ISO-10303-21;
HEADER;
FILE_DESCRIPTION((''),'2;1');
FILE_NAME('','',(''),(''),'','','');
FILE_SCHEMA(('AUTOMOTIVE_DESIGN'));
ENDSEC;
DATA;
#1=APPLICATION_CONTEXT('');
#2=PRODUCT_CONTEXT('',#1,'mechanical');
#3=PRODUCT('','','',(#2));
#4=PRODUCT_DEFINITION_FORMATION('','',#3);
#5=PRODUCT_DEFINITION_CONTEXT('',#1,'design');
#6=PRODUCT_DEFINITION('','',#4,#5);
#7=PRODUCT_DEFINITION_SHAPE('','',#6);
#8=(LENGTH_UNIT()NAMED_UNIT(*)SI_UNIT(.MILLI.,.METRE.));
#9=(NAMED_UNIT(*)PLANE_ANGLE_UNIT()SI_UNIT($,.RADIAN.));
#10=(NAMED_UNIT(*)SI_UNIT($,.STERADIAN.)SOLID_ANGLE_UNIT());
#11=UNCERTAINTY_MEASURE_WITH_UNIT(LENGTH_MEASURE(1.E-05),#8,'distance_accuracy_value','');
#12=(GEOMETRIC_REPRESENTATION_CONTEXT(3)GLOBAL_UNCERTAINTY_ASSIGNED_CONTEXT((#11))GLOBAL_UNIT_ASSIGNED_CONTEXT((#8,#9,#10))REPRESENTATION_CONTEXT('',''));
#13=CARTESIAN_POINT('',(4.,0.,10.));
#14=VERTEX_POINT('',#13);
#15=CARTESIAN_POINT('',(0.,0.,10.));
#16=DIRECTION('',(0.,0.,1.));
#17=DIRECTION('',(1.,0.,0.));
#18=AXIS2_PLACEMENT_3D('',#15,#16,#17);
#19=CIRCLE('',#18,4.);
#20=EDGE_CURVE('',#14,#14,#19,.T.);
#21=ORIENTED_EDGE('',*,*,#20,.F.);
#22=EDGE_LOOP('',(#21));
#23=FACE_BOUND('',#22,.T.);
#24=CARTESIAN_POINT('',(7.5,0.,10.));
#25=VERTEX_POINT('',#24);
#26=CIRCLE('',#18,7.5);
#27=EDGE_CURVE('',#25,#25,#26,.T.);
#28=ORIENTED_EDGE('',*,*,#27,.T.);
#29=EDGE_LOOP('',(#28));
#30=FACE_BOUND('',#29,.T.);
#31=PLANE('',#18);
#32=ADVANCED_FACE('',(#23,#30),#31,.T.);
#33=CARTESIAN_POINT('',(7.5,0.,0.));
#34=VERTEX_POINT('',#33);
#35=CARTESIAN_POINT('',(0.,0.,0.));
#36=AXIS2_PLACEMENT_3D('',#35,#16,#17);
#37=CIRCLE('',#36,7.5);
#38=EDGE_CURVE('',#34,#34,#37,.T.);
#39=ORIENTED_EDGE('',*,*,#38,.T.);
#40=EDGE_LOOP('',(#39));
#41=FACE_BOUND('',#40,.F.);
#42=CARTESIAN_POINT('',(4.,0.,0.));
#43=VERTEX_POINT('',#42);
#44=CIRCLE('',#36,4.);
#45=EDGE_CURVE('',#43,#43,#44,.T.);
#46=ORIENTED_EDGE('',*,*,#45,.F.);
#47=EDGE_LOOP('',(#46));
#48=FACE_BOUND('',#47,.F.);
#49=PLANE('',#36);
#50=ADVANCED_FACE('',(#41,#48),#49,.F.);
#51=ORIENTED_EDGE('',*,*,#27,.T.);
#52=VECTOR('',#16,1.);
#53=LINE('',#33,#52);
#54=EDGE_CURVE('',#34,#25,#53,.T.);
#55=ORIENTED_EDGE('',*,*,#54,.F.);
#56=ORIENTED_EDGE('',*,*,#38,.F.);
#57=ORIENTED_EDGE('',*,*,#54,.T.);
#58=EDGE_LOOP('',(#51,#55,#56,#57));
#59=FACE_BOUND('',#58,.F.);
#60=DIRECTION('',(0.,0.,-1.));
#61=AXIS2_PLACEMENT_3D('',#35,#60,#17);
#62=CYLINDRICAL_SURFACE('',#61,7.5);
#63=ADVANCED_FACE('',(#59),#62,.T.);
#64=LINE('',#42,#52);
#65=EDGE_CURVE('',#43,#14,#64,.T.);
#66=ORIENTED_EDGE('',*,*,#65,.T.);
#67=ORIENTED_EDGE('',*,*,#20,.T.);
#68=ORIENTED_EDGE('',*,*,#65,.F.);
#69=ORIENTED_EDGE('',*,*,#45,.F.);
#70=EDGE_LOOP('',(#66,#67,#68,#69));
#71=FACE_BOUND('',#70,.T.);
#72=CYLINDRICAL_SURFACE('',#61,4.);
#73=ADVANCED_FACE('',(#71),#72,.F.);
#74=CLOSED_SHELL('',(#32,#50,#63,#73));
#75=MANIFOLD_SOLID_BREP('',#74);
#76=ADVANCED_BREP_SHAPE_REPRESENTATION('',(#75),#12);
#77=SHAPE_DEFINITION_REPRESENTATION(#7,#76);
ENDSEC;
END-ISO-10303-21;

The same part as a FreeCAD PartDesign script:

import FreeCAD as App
import Part
import Sketcher

doc = App.newDocument("Part")
body = doc.addObject("PartDesign::Body", "Body")

# Sketch on XY plane
sketch1 = body.newObject("Sketcher::SketchObject", "Sketch")
sketch1.AttachmentSupport = (doc.getObject("XY_Plane"), [""])
sketch1.MapMode = "FlatFace"
sketch1.addGeometry(Part.Circle(App.Vector(0, 0, 0), App.Vector(0, 0, 1), 7.5), False)
sketch1.addGeometry(Part.Circle(App.Vector(0, 0, 0), App.Vector(0, 0, 1), 4), False)
sketch1.addConstraint(Sketcher.Constraint("Coincident", 0, 3, -1, 1))
sketch1.addConstraint(Sketcher.Constraint("Coincident", 1, 3, -1, 1))
sketch1.addConstraint(Sketcher.Constraint("Diameter", 0, 15.0))
sketch1.addConstraint(Sketcher.Constraint("Diameter", 1, 8.0))
pad1 = body.newObject("PartDesign::Pad", "Pad")
pad1.Profile = sketch1
pad1.Length = 10
body2 = doc.addObject("PartDesign::Body", "Body001")

# Sketch on XZ plane
sketch2 = body2.newObject("Sketcher::SketchObject", "Sketch001")
sketch2.AttachmentSupport = (doc.getObject("XZ_Plane001"), [""])
sketch2.MapMode = "FlatFace"
sketch2.addGeometry(Part.LineSegment(App.Vector(16.2, 42.7, 0), App.Vector(16.2, 41.7, 0)), False)
sketch2.addGeometry(Part.LineSegment(App.Vector(16.2, 41.7, 0), App.Vector(46.2, 41.7, 0)), False)
sketch2.addGeometry(Part.LineSegment(App.Vector(46.2, 41.7, 0), App.Vector(46.2, 42.7, 0)), False)
sketch2.addGeometry(Part.LineSegment(App.Vector(46.2, 42.7, 0), App.Vector(16.2, 42.7, 0)), False)
sketch2.addGeometry(Part.LineSegment(App.Vector(16.2, 42.7, 0), App.Vector(46.2, 42.7, 0)), True)  # axis
sketch2.addConstraint(Sketcher.Constraint("Coincident", 0, 2, 1, 1))
sketch2.addConstraint(Sketcher.Constraint("Coincident", 1, 2, 2, 1))
sketch2.addConstraint(Sketcher.Constraint("Coincident", 2, 2, 3, 1))
sketch2.addConstraint(Sketcher.Constraint("Coincident", 3, 2, 0, 1))
sketch2.addConstraint(Sketcher.Constraint("Vertical", 0))
sketch2.addConstraint(Sketcher.Constraint("Horizontal", 1))
sketch2.addConstraint(Sketcher.Constraint("Vertical", 2))
sketch2.addConstraint(Sketcher.Constraint("Horizontal", 3))
sketch2.addConstraint(Sketcher.Constraint("Horizontal", 4))
sketch2.addConstraint(Sketcher.Constraint("Coincident", 4, 1, 3, 2))
sketch2.addConstraint(Sketcher.Constraint("Vertical", 1, 2, 4, 2))
sketch2.addConstraint(Sketcher.Constraint("DistanceX", 1, 1, 1, 2, 30.0))
sketch2.addConstraint(Sketcher.Constraint("DistanceY", 0, 2, 0, 1, 1.0))
sketch2.addConstraint(Sketcher.Constraint("DistanceX", -1, 1, 0, 2, 16.168116))
sketch2.addConstraint(Sketcher.Constraint("DistanceY", -1, 1, 0, 2, 41.656867))
revolution = body2.newObject("PartDesign::Revolution", "Revolution")
revolution.Profile = sketch2
revolution.ReferenceAxis = (sketch2, ["Axis0"])
revolution.Angle = 360
body2.Visibility = False

doc.recompute()
